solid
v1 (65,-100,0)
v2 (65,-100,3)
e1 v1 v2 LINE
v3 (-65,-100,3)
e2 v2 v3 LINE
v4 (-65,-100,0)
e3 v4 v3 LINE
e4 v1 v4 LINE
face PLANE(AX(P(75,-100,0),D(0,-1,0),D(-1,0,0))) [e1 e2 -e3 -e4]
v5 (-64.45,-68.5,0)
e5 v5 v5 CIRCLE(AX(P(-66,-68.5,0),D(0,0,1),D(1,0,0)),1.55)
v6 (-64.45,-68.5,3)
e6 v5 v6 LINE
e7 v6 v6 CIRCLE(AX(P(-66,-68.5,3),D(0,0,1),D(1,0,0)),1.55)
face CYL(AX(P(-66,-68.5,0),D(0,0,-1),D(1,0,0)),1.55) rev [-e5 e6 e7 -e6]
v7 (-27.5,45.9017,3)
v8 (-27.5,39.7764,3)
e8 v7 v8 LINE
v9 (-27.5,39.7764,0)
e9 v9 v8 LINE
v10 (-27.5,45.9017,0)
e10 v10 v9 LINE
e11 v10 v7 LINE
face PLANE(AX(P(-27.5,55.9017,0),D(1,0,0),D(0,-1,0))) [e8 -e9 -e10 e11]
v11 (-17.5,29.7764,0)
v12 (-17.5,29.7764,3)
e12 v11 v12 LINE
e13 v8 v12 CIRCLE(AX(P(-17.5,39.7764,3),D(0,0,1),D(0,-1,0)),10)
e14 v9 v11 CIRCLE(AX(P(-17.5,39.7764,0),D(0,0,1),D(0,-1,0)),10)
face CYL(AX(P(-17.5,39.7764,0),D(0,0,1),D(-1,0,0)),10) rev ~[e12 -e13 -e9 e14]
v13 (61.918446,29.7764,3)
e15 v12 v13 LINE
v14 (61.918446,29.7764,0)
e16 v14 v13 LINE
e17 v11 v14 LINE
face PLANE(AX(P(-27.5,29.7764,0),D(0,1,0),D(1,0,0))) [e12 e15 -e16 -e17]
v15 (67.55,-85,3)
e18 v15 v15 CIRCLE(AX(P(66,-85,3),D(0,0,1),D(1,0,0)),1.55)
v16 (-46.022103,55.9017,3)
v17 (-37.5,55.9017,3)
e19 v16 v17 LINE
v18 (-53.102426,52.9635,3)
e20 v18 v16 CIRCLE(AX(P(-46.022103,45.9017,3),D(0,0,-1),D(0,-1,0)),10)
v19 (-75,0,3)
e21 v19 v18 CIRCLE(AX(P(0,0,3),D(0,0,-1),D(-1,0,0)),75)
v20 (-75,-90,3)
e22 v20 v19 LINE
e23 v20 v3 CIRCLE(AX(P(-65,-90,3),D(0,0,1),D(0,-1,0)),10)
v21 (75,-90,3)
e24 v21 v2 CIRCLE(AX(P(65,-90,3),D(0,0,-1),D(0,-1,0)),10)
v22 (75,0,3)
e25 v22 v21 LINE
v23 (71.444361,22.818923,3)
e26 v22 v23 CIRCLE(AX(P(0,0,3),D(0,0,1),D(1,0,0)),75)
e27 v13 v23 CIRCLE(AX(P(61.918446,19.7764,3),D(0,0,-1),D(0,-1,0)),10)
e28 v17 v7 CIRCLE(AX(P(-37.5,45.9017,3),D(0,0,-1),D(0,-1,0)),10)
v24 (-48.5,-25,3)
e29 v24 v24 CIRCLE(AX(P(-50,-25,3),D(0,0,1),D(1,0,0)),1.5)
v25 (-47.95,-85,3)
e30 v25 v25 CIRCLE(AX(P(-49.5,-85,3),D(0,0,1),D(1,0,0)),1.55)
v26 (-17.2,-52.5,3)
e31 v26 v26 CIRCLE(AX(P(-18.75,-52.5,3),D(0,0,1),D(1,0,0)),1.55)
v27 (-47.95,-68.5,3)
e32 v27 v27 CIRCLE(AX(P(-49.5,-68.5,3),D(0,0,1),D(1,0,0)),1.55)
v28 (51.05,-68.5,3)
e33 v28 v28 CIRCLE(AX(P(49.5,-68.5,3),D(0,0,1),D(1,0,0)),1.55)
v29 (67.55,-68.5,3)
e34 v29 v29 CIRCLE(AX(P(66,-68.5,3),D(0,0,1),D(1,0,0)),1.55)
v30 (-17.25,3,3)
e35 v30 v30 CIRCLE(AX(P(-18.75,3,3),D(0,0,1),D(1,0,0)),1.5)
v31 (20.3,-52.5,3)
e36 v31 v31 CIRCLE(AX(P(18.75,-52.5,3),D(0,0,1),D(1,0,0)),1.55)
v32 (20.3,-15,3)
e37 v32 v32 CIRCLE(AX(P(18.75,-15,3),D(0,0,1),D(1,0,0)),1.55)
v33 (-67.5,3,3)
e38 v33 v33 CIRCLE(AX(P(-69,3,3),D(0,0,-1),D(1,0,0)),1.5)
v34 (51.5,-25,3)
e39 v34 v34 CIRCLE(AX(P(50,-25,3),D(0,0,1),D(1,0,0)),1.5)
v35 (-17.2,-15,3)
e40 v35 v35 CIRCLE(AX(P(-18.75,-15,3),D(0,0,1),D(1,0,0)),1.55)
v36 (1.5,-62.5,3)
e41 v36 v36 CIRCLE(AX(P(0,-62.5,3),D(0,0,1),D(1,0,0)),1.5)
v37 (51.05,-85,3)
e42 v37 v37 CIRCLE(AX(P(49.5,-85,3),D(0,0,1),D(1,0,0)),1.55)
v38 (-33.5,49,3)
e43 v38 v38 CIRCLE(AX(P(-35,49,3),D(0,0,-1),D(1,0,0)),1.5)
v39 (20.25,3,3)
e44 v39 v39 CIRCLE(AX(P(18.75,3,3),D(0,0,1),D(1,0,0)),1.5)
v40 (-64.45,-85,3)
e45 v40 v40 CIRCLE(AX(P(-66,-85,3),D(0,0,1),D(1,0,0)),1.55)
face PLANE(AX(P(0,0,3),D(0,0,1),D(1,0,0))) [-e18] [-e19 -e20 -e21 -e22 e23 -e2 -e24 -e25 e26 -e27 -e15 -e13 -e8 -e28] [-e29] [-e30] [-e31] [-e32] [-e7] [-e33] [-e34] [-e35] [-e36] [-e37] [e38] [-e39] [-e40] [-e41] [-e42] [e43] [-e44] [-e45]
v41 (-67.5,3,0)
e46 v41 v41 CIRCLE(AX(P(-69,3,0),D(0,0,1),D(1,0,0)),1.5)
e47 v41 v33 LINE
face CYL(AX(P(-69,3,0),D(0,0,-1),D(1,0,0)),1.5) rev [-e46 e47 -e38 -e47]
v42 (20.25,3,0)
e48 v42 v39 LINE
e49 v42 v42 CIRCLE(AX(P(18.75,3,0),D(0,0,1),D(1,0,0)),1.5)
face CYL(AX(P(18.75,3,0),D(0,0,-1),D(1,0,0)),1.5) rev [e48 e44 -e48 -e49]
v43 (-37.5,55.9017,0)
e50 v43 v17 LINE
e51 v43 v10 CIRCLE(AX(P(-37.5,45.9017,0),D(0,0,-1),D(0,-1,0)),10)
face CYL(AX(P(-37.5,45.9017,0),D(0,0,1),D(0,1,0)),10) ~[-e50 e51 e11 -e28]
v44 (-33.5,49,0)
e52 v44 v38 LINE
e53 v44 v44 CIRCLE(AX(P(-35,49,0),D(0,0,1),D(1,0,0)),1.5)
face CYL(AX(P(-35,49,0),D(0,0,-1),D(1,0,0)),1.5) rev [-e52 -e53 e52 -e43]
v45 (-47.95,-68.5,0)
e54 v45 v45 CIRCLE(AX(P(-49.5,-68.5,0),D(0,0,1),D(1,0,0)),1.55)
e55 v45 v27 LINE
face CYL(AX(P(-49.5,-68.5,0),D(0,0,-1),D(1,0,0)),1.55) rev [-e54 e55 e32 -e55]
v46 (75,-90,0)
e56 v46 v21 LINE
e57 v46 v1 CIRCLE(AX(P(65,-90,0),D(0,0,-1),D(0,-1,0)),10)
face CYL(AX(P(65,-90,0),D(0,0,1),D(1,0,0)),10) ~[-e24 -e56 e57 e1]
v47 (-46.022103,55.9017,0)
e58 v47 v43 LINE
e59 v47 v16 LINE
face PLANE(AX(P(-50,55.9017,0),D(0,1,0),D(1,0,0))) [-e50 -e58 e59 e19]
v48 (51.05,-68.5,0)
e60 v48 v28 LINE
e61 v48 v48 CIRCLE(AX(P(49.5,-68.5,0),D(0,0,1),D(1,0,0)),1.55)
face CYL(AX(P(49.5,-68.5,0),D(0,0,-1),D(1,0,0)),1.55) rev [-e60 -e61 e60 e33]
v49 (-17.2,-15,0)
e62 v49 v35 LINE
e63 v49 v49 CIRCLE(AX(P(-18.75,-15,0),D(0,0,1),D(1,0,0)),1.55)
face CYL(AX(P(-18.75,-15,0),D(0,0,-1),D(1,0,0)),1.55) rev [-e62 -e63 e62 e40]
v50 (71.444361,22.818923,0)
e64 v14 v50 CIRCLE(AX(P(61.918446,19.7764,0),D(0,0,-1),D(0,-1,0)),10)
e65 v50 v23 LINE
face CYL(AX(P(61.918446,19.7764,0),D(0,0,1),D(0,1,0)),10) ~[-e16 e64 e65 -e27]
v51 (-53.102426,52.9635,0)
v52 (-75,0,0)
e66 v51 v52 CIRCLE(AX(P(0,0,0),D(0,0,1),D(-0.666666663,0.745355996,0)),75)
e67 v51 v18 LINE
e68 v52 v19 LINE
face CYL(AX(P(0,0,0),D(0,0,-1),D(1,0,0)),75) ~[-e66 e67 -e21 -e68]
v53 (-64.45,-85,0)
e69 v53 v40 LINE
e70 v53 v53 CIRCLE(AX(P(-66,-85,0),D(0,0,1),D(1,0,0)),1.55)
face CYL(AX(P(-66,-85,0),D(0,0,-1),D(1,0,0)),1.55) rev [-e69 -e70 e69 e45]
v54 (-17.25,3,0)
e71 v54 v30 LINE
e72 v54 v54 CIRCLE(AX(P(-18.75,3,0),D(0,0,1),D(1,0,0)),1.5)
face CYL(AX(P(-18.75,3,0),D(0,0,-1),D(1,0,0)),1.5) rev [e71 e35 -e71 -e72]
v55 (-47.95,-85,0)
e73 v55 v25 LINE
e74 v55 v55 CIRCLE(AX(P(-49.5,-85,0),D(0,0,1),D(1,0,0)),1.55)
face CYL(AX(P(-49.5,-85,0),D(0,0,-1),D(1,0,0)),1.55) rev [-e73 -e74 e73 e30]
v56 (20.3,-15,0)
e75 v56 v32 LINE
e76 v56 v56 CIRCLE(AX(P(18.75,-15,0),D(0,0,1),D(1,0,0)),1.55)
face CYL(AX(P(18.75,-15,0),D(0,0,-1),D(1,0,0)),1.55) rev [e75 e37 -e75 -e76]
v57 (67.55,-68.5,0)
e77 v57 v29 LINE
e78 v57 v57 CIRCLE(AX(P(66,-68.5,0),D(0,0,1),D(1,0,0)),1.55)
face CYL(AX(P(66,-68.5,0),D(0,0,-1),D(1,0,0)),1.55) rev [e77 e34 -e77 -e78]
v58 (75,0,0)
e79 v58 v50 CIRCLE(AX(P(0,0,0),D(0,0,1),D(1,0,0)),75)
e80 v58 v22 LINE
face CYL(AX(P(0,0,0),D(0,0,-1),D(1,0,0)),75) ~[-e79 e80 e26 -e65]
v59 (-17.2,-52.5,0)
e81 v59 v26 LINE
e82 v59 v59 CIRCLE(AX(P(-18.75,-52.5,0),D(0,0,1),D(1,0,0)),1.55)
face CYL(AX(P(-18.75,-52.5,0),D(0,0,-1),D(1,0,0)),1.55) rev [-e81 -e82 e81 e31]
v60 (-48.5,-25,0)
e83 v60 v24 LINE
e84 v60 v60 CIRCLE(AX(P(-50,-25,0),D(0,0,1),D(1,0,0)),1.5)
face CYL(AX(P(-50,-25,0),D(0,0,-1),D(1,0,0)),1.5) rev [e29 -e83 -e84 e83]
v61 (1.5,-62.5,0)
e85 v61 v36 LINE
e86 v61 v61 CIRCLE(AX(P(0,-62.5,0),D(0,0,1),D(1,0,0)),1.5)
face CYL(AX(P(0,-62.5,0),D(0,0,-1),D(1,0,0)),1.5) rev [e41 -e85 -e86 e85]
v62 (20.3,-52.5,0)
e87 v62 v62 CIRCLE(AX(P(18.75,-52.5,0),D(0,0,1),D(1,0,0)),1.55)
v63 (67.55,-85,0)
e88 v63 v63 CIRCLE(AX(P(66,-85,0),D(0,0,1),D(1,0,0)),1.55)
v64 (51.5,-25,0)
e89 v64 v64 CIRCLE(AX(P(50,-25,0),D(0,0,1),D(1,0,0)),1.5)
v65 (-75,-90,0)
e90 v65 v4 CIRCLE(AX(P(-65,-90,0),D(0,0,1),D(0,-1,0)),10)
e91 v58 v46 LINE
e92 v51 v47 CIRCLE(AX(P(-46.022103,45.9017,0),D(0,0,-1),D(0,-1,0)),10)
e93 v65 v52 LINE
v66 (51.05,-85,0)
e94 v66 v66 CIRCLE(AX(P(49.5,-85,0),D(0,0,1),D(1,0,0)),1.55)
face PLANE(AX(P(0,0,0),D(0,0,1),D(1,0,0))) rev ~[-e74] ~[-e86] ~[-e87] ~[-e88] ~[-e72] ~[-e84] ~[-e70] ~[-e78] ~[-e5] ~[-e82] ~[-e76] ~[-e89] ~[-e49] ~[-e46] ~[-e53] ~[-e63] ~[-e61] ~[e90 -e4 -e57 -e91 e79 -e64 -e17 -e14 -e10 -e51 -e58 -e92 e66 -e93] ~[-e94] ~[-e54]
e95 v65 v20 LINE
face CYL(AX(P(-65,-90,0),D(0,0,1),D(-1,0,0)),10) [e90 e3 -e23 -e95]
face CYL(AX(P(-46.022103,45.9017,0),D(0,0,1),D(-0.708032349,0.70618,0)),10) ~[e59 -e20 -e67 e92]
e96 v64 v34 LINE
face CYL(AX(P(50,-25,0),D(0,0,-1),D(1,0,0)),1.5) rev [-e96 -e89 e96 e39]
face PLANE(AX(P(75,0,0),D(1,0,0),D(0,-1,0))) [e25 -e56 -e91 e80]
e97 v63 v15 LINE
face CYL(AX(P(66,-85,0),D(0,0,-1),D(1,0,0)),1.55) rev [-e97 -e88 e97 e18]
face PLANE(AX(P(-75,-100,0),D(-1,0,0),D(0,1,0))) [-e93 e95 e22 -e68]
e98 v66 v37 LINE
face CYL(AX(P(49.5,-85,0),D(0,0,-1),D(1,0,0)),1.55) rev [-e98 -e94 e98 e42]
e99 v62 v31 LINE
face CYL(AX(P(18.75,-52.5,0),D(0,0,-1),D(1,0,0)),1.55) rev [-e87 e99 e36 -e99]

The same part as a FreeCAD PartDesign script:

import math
import FreeCAD as App
import Part
import Sketcher
from FreeCAD import Vector


def edges_at(feature, points):
    """Names of the edges that pass closest to the given points."""
    edges = feature.Shape.Edges
    near = lambda p: min(range(len(edges)), key=lambda i: edges[i].distToShape(Part.Vertex(*p))[0])
    return sorted({f"Edge{near(p) + 1}" for p in points})

doc = App.newDocument("Part")
params = doc.addObject("Spreadsheet::Sheet", "Params")
for row, (alias, value) in enumerate([
    ("sketch1_diameter", "3 mm"),
    ("sketch1_radius", "75 mm"),
    ("sketch1_diameter2", "3.1 mm"),
    ("sketch1_height", "100 mm"),
    ("pad1_length", "3 mm"),
    ("fillet_radius", "10 mm"),
], start=1):
    params.set(f"A{row}", alias)
    params.set(f"B{row}", "=" + value)
    params.setAlias(f"B{row}", alias)

body = doc.addObject("PartDesign::Body", "Body")

# Sketch on XY plane
sketch1 = doc.addObject("Sketcher::SketchObject", "Sketch")
body.addObject(sketch1)
sketch1.AttachmentSupport = (doc.XY_Plane, [""])
sketch1.MapMode = "FlatFace"
sketch1.addGeometry([
    Part.ArcOfCircle(Part.Circle(Vector(0, 0, 0), Vector(0, 0, 1), 75), math.radians(132), math.radians(180)),  # 0
    Part.LineSegment(Vector(-75, 0, 0), Vector(-75, -100, 0)),  # 1
    Part.LineSegment(Vector(-75, -100, 0), Vector(75, -100, 0)),  # 2
    Part.LineSegment(Vector(75, -100, 0), Vector(75, 0, 0)),  # 3
    Part.ArcOfCircle(Part.Circle(Vector(0, 0, 0), Vector(0, 0, 1), 75), math.radians(0), math.radians(23)),  # 4
    Part.LineSegment(Vector(68.8, 29.8, 0), Vector(-27.5, 29.8, 0)),  # 5
    Part.LineSegment(Vector(-27.5, 29.8, 0), Vector(-27.5, 55.9, 0)),  # 6
    Part.LineSegment(Vector(-27.5, 55.9, 0), Vector(-50, 55.9, 0)),  # 7
    Part.Circle(Vector(-18.8, 3, 0), Vector(0, 0, 1), 1.5),  # 8
    Part.Circle(Vector(18.8, 3, 0), Vector(0, 0, 1), 1.5),  # 9
    Part.Circle(Vector(50, -25, 0), Vector(0, 0, 1), 1.5),  # 10
    Part.Circle(Vector(-50, -25, 0), Vector(0, 0, 1), 1.5),  # 11
    Part.Circle(Vector(-18.8, -52.5, 0), Vector(0, 0, 1), 1.6),  # 12
    Part.Circle(Vector(-18.8, -15, 0), Vector(0, 0, 1), 1.6),  # 13
    Part.Circle(Vector(0, -62.5, 0), Vector(0, 0, 1), 1.5),  # 14
    Part.Circle(Vector(18.8, -52.5, 0), Vector(0, 0, 1), 1.6),  # 15
    Part.Circle(Vector(18.8, -15, 0), Vector(0, 0, 1), 1.6),  # 16
    Part.Circle(Vector(-69, 3, 0), Vector(0, 0, 1), 1.5),  # 17
    Part.Circle(Vector(-35, 49, 0), Vector(0, 0, 1), 1.5),  # 18
    Part.Circle(Vector(66, -68.5, 0), Vector(0, 0, 1), 1.6),  # 19
    Part.Circle(Vector(-66, -85, 0), Vector(0, 0, 1), 1.6),  # 20
    Part.Circle(Vector(-49.5, -85, 0), Vector(0, 0, 1), 1.6),  # 21
    Part.Circle(Vector(-66, -68.5, 0), Vector(0, 0, 1), 1.6),  # 22
    Part.Circle(Vector(-49.5, -68.5, 0), Vector(0, 0, 1), 1.6),  # 23
    Part.Circle(Vector(49.5, -85, 0), Vector(0, 0, 1), 1.6),  # 24
    Part.Circle(Vector(66, -85, 0), Vector(0, 0, 1), 1.6),  # 25
    Part.Circle(Vector(49.5, -68.5, 0), Vector(0, 0, 1), 1.6),  # 26
], False)
sketch1.addConstraint([
    Sketcher.Constraint("Tangent", 0, 2, 1, 1),
    Sketcher.Constraint("Coincident", 1, 2, 2, 1),
    Sketcher.Constraint("Coincident", 2, 2, 3, 1),
    Sketcher.Constraint("Tangent", 3, 2, 4, 1),
    Sketcher.Constraint("Coincident", 4, 2, 5, 1),
    Sketcher.Constraint("Coincident", 5, 2, 6, 1),
    Sketcher.Constraint("Coincident", 6, 2, 7, 1),
    Sketcher.Constraint("Coincident", 7, 2, 0, 1),
    Sketcher.Constraint("Vertical", 1),
    Sketcher.Constraint("Horizontal", 2),
    Sketcher.Constraint("Vertical", 3),
    Sketcher.Constraint("Horizontal", 5),
    Sketcher.Constraint("Vertical", 6),
    Sketcher.Constraint("Horizontal", 7),
    Sketcher.Constraint("Coincident", 0, 3, -1, 1),
    Sketcher.Constraint("Coincident", 4, 3, -1, 1),
    Sketcher.Constraint("Equal", 0, 4),
    Sketcher.Constraint("Equal", 8, 9),
    Sketcher.Constraint("Equal", 9, 10),
    Sketcher.Constraint("Equal", 10, 11),
    Sketcher.Constraint("Equal", 12, 13),
    Sketcher.Constraint("Equal", 11, 14),
    Sketcher.Constraint("Equal", 13, 15),
    Sketcher.Constraint("Equal", 15, 16),
    Sketcher.Constraint("Equal", 14, 17),
    Sketcher.Constraint("Equal", 17, 18),
    Sketcher.Constraint("Equal", 16, 19),
    Sketcher.Constraint("Equal", 19, 20),
    Sketcher.Constraint("Equal", 20, 21),
    Sketcher.Constraint("Equal", 21, 22),
    Sketcher.Constraint("Equal", 22, 23),
    Sketcher.Constraint("Equal", 23, 24),
    Sketcher.Constraint("Equal", 24, 25),
    Sketcher.Constraint("Equal", 25, 26),
    Sketcher.Constraint("Symmetric", 8, 3, 9, 3, -2),
    Sketcher.Constraint("Symmetric", 10, 3, 11, 3, -2),
    Sketcher.Constraint("Symmetric", 12, 3, 15, 3, -2),
    Sketcher.Constraint("Symmetric", 13, 3, 16, 3, -2),
    Sketcher.Constraint("Symmetric", 19, 3, 22, 3, -2),
    Sketcher.Constraint("Symmetric", 21, 3, 24, 3, -2),
    Sketcher.Constraint("Symmetric", 20, 3, 25, 3, -2),
    Sketcher.Constraint("Symmetric", 23, 3, 26, 3, -2),
    Sketcher.Constraint("PointOnObject", 14, 3, -2),
    Sketcher.Constraint("Horizontal", 9, 3, 17, 3),
    Sketcher.Constraint("Horizontal", 20, 3, 21, 3),
    Sketcher.Constraint("Horizontal", 22, 3, 23, 3),
    Sketcher.Constraint("Vertical", 8, 3, 12, 3),
    Sketcher.Constraint("Vertical", 12, 3, 13, 3),
    Sketcher.Constraint("Vertical", 20, 3, 22, 3),
    Sketcher.Constraint("Vertical", 21, 3, 23, 3),
    Sketcher.Constraint("Vertical", 11, 3, 7, 2),
    Sketcher.Constraint("Diameter", 8, 3.0),
    Sketcher.Constraint("Radius", 0, 75.0),
    Sketcher.Constraint("Diameter", 12, 3.1),
    Sketcher.Constraint("DistanceY", 1, 2, 1, 1, 100.0),
    Sketcher.Constraint("DistanceY", -1, 1, 8, 3, 3.0),
    Sketcher.Constraint("DistanceX", -1, 1, 10, 3, 50.0),
    Sketcher.Constraint("DistanceY", 10, 3, -1, 1, 25.0),
    Sketcher.Constraint("DistanceY", 13, 3, -1, 1, 15.0),
    Sketcher.Constraint("DistanceY", 14, 3, 12, 3, 10.0),
    Sketcher.Constraint("DistanceY", 8, 3, 18, 3, 46.0),
    Sketcher.Constraint("DistanceX", 17, 3, 18, 3, 34.0),
    Sketcher.Constraint("DistanceY", 19, 3, 14, 3, 6.0),
    Sketcher.Constraint("DistanceX", 17, 3, 20, 3, 3.0),
    Sketcher.Constraint("DistanceX", 0, 2, 17, 3, 6.0),
    Sketcher.Constraint("DistanceY", 1, 2, 20, 3, 15.0),
    Sketcher.Constraint("DistanceX", 8, 3, 9, 3, 37.5),
    Sketcher.Constraint("DistanceY", 12, 3, 13, 3, 37.5),
    Sketcher.Constraint("DistanceX", 20, 3, 21, 3, 16.5),
    Sketcher.Constraint("DistanceX", 18, 3, 5, 2, 7.5),
    Sketcher.Constraint("DistanceX", 5, 2, 5, 1, 96.3358),
])
sketch1.setExpression("Constraints[51]", "Params.sketch1_diameter")
sketch1.setExpression("Constraints[52]", "Params.sketch1_radius")
sketch1.setExpression("Constraints[53]", "Params.sketch1_diameter2")
sketch1.setExpression("Constraints[54]", "Params.sketch1_height")
pad1 = doc.addObject("PartDesign::Pad", "Pad")
body.addObject(pad1)
pad1.Profile = sketch1
pad1.setExpression("Length", "Params.pad1_length")
doc.recompute()

fillet = doc.addObject("PartDesign::Fillet", "Fillet")
body.addObject(fillet)
fillet.Base = (pad1, edges_at(pad1, [
    (-27.5, 55.902, 1.5),
    (75, -100, 1.5),
    (-75, -100, 1.5),
    (-50, 55.902, 1.5),
    (68.836, 29.776, 1.5),
    (-27.5, 29.776, 1.5),
]))
fillet.setExpression("Radius", "Params.fillet_radius")

doc.recompute()
